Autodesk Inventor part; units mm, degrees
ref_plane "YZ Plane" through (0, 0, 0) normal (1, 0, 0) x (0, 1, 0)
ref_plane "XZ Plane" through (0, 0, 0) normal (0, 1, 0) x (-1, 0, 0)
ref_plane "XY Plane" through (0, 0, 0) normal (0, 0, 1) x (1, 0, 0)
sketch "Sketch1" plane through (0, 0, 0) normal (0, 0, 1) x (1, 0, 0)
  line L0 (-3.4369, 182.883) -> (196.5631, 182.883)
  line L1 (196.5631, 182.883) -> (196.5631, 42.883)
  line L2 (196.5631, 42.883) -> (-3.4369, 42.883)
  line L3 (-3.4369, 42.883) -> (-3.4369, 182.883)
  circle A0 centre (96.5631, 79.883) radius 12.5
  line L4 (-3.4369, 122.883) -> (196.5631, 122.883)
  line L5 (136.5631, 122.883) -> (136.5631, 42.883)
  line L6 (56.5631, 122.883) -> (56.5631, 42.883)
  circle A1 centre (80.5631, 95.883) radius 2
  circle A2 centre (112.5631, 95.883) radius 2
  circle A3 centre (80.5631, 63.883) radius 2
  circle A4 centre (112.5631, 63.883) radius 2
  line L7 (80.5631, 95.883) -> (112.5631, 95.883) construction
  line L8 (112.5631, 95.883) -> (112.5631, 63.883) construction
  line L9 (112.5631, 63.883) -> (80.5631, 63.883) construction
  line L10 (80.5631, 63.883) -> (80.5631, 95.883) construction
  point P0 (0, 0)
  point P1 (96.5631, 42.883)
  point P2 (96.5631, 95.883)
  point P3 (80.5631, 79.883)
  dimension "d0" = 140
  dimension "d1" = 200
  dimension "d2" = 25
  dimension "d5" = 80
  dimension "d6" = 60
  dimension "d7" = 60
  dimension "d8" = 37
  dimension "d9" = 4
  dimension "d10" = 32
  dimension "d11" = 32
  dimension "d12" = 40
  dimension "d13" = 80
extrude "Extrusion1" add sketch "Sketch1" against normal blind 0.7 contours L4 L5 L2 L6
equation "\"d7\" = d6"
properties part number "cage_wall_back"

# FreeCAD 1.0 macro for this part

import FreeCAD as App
import Part
import Sketcher

V = App.Vector
Q = App.Units.Quantity


def add_polygon(sketch, points):
    """Adds a closed chain of lines whose ends are joined by coincident constraints."""
    first, n = sketch.GeometryCount, len(points)
    for a, b in zip(points, points[1:] + points[:1]):
        sketch.addGeometry(Part.LineSegment(App.Vector(*a, 0), App.Vector(*b, 0)), False)
    for i in range(n):
        sketch.addConstraint(Sketcher.Constraint("Coincident", first + i, 2, first + (i + 1) % n, 1))

doc = App.newDocument("Part")
body = doc.addObject("PartDesign::Body", "Body")

# Sketch on XY plane
sketch1 = body.newObject("Sketcher::SketchObject", "Sketch")
sketch1.AttachmentSupport = (doc.getObject("XY_Plane"), [""])
sketch1.MapMode = "FlatFace"
add_polygon(sketch1, [(136.5631, 122.883), (56.5631, 122.883), (56.5631, 42.883), (136.5631, 42.883)])  # lines 0-3
sketch1.addGeometry(Part.Circle(V(80.5631, 63.883, 0), V(0, 0, 1), 2), False)  # 4
sketch1.addGeometry(Part.Circle(V(80.5631, 95.883, 0), V(0, 0, 1), 2), False)  # 5
sketch1.addGeometry(Part.Circle(V(112.5631, 63.883, 0), V(0, 0, 1), 2), False)  # 6
sketch1.addGeometry(Part.Circle(V(96.5631, 79.883, 0), V(0, 0, 1), 12.5), False)  # 7
sketch1.addGeometry(Part.Circle(V(112.5631, 95.883, 0), V(0, 0, 1), 2), False)  # 8
sketch1.addConstraint([
    Sketcher.Constraint("Horizontal", 0),
    Sketcher.Constraint("Vertical", 1),
    Sketcher.Constraint("Horizontal", 2),
    Sketcher.Constraint("Vertical", 3),
    Sketcher.Constraint("Equal", 4, 5),
    Sketcher.Constraint("Equal", 5, 6),
    Sketcher.Constraint("Equal", 6, 8),
    Sketcher.Constraint("Horizontal", 4, 3, 6, 3),
    Sketcher.Constraint("Horizontal", 5, 3, 8, 3),
    Sketcher.Constraint("Vertical", 4, 3, 5, 3),
    Sketcher.Constraint("Vertical", 6, 3, 8, 3),
    Sketcher.Constraint("Equal", 2, 1),
    Sketcher.Constraint("Diameter", 4, Q("4 mm")),
    Sketcher.Constraint("Diameter", 7, Q("25 mm")),
    Sketcher.Constraint("DistanceX", 0, 2, 0, 1, Q("80 mm")),
    Sketcher.Constraint("DistanceY", 4, 3, 5, 3, Q("32 mm")),
    Sketcher.Constraint("DistanceX", 4, 3, 6, 3, Q("32 mm")),
    Sketcher.Constraint("DistanceX", 0, 2, 7, 3, Q("40 mm")),
    Sketcher.Constraint("DistanceY", 1, 2, 7, 3, Q("37 mm")),
    Sketcher.Constraint("DistanceX", 4, 3, 7, 3, Q("16 mm")),
    Sketcher.Constraint("DistanceY", 4, 3, 7, 3, Q("16 mm")),
    Sketcher.Constraint("DistanceX", -1, 1, 4, 3, Q("80.563 mm")),
    Sketcher.Constraint("DistanceY", -1, 1, 4, 3, Q("63.883 mm")),
])
pad1 = body.newObject("PartDesign::Pad", "Pad")
pad1.Profile = sketch1
pad1.Length = 0.7
pad1.Reversed = True

doc.recompute()
